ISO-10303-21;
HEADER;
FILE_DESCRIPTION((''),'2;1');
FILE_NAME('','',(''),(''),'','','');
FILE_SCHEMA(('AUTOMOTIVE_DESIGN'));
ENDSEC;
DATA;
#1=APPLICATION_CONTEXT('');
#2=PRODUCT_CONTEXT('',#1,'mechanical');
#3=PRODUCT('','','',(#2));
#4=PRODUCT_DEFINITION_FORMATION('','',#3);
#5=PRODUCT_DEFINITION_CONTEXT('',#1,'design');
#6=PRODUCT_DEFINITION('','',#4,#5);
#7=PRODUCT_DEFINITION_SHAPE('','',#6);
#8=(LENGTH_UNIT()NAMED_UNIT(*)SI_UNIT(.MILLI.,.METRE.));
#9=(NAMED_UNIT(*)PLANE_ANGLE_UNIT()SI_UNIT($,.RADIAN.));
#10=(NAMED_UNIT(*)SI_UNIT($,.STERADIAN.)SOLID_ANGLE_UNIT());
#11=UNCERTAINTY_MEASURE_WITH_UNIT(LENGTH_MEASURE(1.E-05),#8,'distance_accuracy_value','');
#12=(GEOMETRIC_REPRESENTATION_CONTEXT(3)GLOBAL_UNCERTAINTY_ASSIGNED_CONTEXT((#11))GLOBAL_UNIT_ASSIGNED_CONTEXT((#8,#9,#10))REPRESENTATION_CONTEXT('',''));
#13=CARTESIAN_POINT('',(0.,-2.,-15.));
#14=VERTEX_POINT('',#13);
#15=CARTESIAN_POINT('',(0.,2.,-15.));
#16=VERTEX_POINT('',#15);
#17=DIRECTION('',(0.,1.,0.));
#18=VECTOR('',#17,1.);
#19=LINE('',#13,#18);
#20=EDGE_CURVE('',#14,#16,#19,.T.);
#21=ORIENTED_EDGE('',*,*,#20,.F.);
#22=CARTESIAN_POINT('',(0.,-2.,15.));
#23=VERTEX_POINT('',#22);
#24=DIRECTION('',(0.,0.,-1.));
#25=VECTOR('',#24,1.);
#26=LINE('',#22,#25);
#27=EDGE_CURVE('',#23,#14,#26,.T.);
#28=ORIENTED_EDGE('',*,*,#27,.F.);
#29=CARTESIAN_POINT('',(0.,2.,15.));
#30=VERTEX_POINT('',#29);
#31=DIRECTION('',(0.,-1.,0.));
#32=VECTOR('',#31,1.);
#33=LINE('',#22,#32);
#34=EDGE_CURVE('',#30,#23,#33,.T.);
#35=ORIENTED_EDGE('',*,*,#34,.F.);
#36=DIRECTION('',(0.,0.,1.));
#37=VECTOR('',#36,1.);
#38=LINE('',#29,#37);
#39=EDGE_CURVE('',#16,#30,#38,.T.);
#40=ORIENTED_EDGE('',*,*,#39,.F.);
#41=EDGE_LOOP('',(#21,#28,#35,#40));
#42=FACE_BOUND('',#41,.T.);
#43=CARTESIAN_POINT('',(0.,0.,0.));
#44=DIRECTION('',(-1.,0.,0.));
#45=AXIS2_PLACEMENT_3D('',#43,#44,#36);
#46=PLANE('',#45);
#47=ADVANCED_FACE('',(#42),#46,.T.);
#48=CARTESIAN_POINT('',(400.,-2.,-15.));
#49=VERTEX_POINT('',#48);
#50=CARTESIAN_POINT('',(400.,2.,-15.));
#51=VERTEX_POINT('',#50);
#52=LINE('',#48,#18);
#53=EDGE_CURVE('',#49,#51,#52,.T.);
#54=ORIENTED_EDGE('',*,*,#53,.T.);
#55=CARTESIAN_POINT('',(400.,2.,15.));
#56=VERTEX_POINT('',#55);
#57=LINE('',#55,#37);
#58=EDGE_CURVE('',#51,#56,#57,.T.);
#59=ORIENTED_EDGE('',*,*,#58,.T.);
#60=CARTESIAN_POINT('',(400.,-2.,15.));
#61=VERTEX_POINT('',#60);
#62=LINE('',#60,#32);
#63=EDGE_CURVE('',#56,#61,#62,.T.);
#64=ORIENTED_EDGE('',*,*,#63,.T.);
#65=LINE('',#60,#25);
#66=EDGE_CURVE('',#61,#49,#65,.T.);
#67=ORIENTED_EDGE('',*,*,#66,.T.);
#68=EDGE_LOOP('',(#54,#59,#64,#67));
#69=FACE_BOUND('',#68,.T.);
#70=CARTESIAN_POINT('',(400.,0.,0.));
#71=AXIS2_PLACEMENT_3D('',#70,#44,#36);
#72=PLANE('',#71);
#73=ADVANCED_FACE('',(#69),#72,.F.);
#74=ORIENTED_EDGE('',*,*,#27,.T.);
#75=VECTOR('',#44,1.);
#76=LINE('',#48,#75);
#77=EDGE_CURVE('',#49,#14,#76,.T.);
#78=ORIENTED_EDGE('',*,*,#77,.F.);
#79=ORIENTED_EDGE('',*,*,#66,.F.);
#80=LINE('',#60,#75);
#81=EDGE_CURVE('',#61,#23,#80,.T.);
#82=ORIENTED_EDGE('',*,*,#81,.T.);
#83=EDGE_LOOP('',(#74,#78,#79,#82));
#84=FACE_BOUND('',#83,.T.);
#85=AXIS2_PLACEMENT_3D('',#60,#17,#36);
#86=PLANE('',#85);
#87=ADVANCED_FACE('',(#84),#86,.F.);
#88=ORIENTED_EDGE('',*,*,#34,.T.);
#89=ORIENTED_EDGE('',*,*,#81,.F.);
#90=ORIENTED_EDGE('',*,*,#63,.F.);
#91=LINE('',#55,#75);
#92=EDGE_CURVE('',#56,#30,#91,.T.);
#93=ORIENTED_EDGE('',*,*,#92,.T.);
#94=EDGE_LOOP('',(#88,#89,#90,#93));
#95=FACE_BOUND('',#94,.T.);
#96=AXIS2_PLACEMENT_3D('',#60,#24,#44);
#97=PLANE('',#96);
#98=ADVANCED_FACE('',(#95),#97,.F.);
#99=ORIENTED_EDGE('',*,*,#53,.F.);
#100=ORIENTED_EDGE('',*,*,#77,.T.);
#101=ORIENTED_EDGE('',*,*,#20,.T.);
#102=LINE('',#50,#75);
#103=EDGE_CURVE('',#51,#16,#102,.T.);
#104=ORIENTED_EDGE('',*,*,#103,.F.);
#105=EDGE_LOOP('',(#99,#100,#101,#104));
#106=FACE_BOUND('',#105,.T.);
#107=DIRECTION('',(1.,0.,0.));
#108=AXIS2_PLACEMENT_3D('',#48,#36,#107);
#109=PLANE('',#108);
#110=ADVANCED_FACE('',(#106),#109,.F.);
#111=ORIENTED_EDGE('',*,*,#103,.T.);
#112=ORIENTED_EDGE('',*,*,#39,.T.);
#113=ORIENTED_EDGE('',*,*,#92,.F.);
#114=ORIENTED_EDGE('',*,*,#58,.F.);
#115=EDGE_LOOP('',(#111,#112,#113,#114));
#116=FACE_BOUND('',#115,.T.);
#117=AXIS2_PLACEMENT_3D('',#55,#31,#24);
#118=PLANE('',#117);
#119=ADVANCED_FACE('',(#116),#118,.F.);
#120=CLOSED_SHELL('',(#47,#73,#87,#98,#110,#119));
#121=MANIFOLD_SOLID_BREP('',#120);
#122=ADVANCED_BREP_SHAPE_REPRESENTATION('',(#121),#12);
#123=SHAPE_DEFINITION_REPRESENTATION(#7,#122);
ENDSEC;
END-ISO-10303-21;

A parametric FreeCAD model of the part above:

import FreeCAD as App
import Part
import Sketcher

V = App.Vector
Q = App.Units.Quantity


def add_polygon(sketch, points):
    """Adds a closed chain of lines whose ends are joined by coincident constraints."""
    first, n = sketch.GeometryCount, len(points)
    for a, b in zip(points, points[1:] + points[:1]):
        sketch.addGeometry(Part.LineSegment(App.Vector(*a, 0), App.Vector(*b, 0)), False)
    for i in range(n):
        sketch.addConstraint(Sketcher.Constraint("Coincident", first + i, 2, first + (i + 1) % n, 1))

doc = App.newDocument("Part")
body = doc.addObject("PartDesign::Body", "Body")

sketch1 = body.newObject("Sketcher::SketchObject", "Sketch")
sketch1.AttachmentSupport = (doc.getObject("YZ_Plane"), [""])
sketch1.MapMode = "FlatFace"
add_polygon(sketch1, [(2, 15), (-2, 15), (-2, -15), (2, -15)])
sketch1.addConstraint(Sketcher.Constraint("Horizontal", 0))
sketch1.addConstraint(Sketcher.Constraint("Vertical", 1))
sketch1.addConstraint(Sketcher.Constraint("Horizontal", 2))
sketch1.addConstraint(Sketcher.Constraint("Vertical", 3))
sketch1.addConstraint(Sketcher.Constraint("Symmetric", 0, 2, 2, 2, -1, 1))
sketch1.addConstraint(Sketcher.Constraint("DistanceX", 0, 2, 0, 1, Q("4 mm")))
sketch1.addConstraint(Sketcher.Constraint("DistanceY", 1, 2, 1, 1, Q("30 mm")))
pad1 = body.newObject("PartDesign::Pad", "Pad")
pad1.Profile = sketch1
pad1.Length = 400

doc.recompute()
